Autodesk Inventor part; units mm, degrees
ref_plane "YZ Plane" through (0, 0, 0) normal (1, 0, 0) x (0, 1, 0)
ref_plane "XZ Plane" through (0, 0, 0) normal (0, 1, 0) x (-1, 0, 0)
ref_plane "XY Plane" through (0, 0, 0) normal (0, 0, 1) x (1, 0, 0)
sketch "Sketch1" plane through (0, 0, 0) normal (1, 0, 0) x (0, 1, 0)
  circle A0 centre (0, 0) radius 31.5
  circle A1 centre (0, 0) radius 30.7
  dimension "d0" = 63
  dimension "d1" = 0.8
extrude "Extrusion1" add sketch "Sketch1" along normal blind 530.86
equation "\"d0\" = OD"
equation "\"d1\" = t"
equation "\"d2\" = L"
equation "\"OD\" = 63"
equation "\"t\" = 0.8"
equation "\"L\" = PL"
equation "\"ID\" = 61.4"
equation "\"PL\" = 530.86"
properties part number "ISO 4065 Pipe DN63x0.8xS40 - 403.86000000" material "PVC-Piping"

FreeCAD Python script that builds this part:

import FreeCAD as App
import Part
import Sketcher
from FreeCAD import Vector

doc = App.newDocument("Part")
body = doc.addObject("PartDesign::Body", "Body")

sketch1 = doc.addObject("Sketcher::SketchObject", "Sketch")
body.addObject(sketch1)
sketch1.AttachmentSupport = (doc.YZ_Plane, [""])
sketch1.MapMode = "FlatFace"
sketch1.addGeometry([
    Part.Circle(Vector(0, 0, 0), Vector(0, 0, 1), 32),
    Part.Circle(Vector(0, 0, 0), Vector(0, 0, 1), 31),
], False)
sketch1.addConstraint([
    Sketcher.Constraint("Coincident", 0, 3, -1, 1),
    Sketcher.Constraint("Coincident", 1, 3, -1, 1),
    Sketcher.Constraint("Diameter", 0, 63.0),
    Sketcher.Constraint("Diameter", 1, 61.4),
])
pad1 = doc.addObject("PartDesign::Pad", "Pad")
body.addObject(pad1)
pad1.Profile = sketch1
pad1.Length = 530.86

doc.recompute()
